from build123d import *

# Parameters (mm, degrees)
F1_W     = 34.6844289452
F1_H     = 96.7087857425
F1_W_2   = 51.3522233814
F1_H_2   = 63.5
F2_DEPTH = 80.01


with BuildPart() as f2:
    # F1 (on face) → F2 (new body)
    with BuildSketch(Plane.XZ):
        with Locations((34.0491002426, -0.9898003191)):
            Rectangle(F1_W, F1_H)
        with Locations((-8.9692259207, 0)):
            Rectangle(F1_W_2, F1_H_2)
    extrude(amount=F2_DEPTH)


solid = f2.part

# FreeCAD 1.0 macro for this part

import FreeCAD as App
import Part
import Sketcher
from FreeCAD import Vector
Q = App.Units.Quantity


def add_polygon(sketch, points):
    """Adds a closed chain of lines whose ends are joined by coincident constraints."""
    first, n = sketch.GeometryCount, len(points)
    for a, b in zip(points, points[1:] + points[:1]):
        sketch.addGeometry(Part.LineSegment(App.Vector(*a, 0), App.Vector(*b, 0)), False)
    for i in range(n):
        sketch.addConstraint(Sketcher.Constraint("Coincident", first + i, 2, first + (i + 1) % n, 1))

doc = App.newDocument("Part")
body = doc.addObject("PartDesign::Body", "Body")

# Sketch on XZ plane
sketch1 = doc.addObject("Sketcher::SketchObject", "Sketch")
body.addObject(sketch1)
sketch1.AttachmentSupport = (doc.XZ_Plane, [""])
sketch1.MapMode = "FlatFace"
add_polygon(sketch1, [(17, -32), (17, -49), (51, -49), (51, 47), (17, 47), (17, 32), (-35, 32), (-35, -32)])  # lines 0-7
sketch1.addConstraint([
    Sketcher.Constraint("Vertical", 0),
    Sketcher.Constraint("Horizontal", 1),
    Sketcher.Constraint("Vertical", 2),
    Sketcher.Constraint("Horizontal", 3),
    Sketcher.Constraint("Vertical", 4),
    Sketcher.Constraint("Horizontal", 5),
    Sketcher.Constraint("Vertical", 6),
    Sketcher.Constraint("Horizontal", 7),
    Sketcher.Constraint("Symmetric", 4, 2, 7, 2, -1),
    Sketcher.Constraint("DistanceY", 6, 2, 6, 1, Q("2.5 in")),
    Sketcher.Constraint("DistanceX", 1, 1, 1, 2, Q("34.684429 mm")),
    Sketcher.Constraint("DistanceX", 5, 2, 5, 1, Q("51.352223 mm")),
    Sketcher.Constraint("DistanceY", 0, 2, 0, 1, Q("17.594193 mm")),
    Sketcher.Constraint("DistanceY", 2, 1, 2, 2, Q("96.708786 mm")),
    Sketcher.Constraint("DistanceX", -1, 1, 0, 2, Q("16.706886 mm")),
])
pad1 = doc.addObject("PartDesign::Pad", "Pad")
body.addObject(pad1)
pad1.Profile = sketch1
pad1.Length = Q("3.15 in")

doc.recompute()
